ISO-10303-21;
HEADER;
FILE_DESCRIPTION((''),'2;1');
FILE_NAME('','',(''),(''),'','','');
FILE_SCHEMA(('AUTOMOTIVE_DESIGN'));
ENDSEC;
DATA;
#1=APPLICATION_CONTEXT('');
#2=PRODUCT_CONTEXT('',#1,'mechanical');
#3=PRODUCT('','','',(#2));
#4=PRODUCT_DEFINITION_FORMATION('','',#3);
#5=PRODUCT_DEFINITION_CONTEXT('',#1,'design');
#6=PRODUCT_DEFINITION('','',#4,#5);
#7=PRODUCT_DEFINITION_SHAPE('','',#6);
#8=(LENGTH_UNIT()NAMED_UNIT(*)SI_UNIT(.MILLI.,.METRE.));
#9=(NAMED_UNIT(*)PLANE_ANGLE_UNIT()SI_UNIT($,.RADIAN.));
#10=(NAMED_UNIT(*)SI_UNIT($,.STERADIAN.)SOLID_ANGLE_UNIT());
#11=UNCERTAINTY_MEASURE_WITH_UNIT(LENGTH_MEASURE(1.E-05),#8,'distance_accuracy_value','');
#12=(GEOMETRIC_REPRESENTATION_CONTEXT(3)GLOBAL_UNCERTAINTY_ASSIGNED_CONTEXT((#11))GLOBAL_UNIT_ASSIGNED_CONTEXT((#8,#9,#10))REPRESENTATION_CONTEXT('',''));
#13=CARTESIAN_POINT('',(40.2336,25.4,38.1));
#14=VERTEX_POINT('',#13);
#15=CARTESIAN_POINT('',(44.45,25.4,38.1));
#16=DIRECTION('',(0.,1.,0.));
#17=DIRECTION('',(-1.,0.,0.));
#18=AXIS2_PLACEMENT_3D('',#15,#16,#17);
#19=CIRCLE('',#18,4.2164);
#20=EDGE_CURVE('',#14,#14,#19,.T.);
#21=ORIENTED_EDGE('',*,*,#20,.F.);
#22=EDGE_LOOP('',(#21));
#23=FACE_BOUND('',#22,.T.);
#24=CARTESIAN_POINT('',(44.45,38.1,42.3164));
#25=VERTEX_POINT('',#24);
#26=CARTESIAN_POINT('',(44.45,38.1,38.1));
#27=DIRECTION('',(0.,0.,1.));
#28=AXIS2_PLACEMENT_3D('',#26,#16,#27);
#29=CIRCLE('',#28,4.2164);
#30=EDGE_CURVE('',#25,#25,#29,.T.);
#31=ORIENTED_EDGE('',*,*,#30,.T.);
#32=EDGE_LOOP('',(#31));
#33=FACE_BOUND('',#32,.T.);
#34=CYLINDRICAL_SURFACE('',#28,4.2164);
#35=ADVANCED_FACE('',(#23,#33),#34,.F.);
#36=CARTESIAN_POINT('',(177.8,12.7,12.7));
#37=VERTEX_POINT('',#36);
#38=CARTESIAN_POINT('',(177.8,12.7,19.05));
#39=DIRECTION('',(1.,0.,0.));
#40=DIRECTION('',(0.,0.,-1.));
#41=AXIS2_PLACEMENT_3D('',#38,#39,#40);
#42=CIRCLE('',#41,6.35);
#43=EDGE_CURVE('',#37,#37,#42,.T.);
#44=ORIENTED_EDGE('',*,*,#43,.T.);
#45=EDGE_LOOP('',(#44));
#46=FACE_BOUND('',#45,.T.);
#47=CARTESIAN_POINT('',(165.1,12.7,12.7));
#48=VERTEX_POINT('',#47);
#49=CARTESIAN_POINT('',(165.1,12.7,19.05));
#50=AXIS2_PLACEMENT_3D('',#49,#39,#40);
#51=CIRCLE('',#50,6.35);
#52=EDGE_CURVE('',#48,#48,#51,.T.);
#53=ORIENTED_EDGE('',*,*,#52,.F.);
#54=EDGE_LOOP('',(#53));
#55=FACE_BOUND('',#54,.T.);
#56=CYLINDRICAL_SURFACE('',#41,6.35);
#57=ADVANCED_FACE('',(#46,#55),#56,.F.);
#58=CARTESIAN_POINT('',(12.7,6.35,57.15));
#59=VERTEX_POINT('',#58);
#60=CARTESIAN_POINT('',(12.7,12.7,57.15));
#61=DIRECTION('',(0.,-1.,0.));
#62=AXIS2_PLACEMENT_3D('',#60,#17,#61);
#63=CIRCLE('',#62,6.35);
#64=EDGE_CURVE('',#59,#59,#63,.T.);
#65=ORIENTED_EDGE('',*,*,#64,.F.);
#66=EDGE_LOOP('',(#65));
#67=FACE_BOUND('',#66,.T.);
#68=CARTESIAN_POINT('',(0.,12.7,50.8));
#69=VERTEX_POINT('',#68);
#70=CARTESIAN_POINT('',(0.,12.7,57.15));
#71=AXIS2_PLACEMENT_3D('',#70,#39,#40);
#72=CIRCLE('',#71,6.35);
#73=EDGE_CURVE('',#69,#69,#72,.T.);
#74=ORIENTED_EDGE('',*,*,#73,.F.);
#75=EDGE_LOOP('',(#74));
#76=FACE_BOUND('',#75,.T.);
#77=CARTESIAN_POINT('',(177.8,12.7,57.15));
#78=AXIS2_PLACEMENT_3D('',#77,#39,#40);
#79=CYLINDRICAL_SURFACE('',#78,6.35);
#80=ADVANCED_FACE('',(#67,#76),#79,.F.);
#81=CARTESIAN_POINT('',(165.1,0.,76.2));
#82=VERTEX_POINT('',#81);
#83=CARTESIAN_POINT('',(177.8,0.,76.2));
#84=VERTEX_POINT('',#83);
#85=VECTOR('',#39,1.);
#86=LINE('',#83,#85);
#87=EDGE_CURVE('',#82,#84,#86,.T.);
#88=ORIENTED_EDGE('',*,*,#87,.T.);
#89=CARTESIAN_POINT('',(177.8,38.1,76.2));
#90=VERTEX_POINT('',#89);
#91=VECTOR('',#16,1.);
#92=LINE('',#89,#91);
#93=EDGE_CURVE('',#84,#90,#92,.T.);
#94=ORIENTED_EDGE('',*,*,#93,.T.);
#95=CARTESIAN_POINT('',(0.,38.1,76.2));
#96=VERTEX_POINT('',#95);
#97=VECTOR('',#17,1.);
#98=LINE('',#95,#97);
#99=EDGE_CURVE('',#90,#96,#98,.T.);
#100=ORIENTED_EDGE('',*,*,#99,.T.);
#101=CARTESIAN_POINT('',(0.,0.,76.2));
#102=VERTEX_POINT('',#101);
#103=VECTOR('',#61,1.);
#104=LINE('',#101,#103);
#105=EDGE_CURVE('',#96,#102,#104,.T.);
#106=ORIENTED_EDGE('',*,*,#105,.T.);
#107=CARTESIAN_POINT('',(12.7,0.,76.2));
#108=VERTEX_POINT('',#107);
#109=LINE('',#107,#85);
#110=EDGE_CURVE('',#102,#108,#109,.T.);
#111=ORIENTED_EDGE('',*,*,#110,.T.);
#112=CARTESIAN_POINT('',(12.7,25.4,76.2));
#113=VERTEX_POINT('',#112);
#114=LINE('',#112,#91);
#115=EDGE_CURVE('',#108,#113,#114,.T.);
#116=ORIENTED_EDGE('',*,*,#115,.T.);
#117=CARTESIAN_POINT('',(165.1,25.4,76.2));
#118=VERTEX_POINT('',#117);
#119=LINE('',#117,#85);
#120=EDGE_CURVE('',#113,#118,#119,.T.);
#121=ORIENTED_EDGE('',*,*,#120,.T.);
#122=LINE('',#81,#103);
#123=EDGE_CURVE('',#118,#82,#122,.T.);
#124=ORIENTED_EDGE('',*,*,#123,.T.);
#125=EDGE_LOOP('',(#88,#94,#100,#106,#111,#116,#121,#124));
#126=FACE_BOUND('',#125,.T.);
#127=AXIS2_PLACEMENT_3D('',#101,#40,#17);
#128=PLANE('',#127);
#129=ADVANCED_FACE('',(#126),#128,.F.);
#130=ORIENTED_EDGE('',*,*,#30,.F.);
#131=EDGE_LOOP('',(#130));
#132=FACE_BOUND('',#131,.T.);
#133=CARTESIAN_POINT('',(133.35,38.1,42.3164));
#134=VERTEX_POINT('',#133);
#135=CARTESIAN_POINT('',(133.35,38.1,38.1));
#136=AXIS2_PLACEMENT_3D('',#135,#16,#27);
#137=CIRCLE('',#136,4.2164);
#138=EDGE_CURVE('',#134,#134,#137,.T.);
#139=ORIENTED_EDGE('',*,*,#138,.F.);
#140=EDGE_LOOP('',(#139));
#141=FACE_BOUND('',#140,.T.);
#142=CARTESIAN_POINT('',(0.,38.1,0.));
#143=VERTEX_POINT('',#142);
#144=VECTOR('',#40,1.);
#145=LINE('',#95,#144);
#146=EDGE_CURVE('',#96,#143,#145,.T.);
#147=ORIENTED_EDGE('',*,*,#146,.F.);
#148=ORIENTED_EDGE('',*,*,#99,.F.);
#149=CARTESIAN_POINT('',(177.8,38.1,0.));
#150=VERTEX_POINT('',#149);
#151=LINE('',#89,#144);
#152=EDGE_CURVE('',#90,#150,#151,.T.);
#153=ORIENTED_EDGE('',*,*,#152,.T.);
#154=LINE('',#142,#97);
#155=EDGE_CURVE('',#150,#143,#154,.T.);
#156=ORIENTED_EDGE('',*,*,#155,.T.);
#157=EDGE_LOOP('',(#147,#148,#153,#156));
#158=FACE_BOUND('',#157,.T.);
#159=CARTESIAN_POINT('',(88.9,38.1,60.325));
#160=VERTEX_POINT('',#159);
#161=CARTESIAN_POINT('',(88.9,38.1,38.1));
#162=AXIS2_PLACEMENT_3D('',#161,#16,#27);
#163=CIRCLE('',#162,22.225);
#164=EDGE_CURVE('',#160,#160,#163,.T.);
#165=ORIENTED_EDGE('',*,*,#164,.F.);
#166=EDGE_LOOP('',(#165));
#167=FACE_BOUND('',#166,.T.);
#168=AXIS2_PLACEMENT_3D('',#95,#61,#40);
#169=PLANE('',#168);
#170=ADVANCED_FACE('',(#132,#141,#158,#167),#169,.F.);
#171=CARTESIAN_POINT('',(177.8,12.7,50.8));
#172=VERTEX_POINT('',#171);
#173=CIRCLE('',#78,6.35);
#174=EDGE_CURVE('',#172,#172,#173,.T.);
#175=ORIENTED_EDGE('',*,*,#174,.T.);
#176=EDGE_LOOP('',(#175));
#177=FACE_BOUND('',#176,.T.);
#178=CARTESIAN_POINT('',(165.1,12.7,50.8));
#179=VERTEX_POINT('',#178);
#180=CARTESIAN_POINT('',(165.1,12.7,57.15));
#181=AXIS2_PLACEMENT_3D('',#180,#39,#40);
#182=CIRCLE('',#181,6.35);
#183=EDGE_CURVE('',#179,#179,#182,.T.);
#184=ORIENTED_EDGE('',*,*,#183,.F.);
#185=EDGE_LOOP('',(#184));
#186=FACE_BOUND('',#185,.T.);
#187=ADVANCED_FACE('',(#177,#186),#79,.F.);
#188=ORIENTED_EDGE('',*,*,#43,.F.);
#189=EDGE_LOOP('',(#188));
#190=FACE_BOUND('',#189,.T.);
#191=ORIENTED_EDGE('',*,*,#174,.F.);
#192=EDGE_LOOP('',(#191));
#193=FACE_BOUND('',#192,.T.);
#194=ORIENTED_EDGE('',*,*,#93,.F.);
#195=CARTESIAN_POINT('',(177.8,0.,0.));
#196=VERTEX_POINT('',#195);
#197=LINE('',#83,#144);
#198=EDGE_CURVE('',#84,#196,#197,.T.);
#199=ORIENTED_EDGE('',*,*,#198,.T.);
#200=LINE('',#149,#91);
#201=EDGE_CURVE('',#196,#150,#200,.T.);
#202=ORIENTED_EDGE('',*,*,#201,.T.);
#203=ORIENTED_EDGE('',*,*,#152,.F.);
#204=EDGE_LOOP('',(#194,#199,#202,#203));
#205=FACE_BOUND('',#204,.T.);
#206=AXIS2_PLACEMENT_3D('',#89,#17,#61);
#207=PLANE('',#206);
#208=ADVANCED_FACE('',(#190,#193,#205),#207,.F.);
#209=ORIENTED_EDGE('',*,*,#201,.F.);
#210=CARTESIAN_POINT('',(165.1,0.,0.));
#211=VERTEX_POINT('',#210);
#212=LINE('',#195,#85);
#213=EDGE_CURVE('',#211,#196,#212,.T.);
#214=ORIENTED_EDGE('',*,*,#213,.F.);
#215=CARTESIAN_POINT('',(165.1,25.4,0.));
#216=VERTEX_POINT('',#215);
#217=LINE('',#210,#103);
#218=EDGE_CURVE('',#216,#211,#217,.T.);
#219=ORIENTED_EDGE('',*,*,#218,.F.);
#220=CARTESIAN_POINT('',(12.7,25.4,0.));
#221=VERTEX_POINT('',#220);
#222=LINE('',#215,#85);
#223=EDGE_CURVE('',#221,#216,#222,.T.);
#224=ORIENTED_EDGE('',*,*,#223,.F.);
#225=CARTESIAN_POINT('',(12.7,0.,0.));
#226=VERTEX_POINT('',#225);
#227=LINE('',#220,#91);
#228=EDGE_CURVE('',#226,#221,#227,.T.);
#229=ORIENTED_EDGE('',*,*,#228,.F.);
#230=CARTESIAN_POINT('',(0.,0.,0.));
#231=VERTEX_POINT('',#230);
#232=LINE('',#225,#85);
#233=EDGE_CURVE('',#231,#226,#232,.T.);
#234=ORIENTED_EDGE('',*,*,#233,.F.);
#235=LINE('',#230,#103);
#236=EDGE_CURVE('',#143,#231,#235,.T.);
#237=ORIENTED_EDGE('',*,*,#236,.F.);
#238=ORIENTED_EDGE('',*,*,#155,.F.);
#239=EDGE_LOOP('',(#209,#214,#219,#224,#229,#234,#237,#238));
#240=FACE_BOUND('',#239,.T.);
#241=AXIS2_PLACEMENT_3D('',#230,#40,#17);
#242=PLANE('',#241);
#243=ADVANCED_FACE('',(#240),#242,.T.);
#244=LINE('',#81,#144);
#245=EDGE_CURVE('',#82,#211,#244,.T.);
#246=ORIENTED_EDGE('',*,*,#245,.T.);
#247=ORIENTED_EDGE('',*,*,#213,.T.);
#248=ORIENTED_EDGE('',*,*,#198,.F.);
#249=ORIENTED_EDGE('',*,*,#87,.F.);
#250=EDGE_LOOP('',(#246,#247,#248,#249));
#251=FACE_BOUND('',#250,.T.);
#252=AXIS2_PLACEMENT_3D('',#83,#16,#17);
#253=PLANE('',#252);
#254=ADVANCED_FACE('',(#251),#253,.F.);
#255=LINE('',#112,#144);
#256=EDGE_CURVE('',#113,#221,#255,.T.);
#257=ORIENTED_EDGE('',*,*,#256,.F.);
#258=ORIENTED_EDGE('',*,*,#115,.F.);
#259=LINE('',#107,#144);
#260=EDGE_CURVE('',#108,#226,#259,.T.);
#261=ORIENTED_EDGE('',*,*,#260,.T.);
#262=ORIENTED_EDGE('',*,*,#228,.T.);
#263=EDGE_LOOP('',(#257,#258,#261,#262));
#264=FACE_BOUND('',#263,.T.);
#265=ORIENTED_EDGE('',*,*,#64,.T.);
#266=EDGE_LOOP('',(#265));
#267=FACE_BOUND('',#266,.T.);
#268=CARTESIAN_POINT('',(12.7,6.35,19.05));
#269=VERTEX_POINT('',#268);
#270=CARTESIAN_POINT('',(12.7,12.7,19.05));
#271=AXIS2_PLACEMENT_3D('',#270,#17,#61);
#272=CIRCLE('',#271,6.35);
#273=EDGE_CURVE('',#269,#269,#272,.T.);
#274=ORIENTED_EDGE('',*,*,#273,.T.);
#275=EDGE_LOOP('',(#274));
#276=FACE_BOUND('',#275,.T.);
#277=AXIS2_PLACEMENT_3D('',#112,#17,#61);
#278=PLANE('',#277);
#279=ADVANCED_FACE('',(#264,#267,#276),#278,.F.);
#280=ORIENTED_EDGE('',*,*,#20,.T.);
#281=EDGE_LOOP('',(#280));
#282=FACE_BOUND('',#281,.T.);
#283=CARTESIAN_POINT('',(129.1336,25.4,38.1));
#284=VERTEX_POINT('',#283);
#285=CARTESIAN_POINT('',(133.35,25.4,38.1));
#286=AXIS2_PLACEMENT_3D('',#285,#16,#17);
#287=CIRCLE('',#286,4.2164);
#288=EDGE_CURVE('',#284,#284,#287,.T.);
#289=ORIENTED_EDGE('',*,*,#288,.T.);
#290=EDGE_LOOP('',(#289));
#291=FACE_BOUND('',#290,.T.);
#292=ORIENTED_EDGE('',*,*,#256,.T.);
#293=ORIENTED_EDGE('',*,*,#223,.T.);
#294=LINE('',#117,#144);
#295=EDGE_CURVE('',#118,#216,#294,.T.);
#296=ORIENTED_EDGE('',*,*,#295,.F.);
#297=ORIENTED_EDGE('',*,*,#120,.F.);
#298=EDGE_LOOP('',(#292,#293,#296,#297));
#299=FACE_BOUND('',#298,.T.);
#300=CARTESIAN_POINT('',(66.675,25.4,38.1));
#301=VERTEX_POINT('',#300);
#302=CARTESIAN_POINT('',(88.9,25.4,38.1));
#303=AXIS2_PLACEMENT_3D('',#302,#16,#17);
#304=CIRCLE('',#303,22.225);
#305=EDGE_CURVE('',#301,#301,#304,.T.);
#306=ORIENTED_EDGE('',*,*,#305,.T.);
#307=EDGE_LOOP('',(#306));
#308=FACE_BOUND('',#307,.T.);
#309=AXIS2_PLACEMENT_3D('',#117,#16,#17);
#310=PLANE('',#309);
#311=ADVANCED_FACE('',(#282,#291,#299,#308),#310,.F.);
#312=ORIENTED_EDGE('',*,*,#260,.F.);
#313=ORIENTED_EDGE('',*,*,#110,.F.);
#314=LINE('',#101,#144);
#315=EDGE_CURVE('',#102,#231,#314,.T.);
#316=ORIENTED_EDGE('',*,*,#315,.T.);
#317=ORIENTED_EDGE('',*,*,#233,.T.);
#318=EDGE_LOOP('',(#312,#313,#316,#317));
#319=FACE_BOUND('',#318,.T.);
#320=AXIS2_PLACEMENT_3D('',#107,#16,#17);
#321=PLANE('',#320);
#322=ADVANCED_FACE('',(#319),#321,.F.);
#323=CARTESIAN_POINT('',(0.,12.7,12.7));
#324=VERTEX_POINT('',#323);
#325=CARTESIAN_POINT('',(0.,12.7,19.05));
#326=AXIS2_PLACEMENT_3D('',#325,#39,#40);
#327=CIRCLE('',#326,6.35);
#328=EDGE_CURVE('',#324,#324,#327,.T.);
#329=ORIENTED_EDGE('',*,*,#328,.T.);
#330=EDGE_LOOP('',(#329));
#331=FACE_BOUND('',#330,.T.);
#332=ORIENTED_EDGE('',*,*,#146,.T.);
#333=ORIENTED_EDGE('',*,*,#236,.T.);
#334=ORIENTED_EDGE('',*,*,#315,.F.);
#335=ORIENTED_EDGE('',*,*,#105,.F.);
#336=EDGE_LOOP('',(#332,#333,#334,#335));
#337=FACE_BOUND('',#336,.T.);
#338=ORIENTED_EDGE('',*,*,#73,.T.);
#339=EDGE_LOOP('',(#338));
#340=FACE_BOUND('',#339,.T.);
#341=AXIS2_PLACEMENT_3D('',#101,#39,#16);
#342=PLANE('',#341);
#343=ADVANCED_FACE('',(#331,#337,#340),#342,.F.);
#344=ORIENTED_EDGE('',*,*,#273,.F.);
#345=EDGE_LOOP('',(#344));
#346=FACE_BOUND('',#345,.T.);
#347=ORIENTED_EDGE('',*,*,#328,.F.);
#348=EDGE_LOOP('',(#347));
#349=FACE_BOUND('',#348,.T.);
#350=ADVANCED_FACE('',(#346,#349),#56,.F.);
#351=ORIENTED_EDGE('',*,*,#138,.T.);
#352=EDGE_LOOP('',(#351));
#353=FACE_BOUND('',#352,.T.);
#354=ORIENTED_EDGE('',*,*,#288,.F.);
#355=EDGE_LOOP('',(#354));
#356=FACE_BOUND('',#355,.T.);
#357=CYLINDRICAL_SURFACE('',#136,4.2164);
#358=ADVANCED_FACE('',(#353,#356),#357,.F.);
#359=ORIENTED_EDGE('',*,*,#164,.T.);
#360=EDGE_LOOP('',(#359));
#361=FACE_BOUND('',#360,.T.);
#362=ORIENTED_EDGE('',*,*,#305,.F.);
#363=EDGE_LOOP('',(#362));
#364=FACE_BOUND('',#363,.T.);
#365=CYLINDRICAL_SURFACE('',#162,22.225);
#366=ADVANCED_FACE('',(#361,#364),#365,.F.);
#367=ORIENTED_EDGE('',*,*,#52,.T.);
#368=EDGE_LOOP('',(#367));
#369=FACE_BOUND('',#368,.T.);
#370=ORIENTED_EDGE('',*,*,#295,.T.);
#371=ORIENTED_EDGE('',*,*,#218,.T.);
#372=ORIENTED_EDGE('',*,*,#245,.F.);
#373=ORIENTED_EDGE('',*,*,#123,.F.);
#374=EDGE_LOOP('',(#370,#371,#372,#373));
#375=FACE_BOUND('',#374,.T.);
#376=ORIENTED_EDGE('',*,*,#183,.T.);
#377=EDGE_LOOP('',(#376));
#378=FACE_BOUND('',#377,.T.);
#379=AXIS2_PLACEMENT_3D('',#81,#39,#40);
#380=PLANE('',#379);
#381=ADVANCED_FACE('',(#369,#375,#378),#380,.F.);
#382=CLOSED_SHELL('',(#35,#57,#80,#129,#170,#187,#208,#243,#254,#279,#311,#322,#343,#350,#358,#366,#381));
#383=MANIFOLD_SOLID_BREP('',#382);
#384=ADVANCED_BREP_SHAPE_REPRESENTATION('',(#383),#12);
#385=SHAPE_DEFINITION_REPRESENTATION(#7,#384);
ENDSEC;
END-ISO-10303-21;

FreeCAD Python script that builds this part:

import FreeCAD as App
import Part
import Sketcher

V = App.Vector
Q = App.Units.Quantity


def add_polygon(sketch, points):
    """Adds a closed chain of lines whose ends are joined by coincident constraints."""
    first, n = sketch.GeometryCount, len(points)
    for a, b in zip(points, points[1:] + points[:1]):
        sketch.addGeometry(Part.LineSegment(App.Vector(*a, 0), App.Vector(*b, 0)), False)
    for i in range(n):
        sketch.addConstraint(Sketcher.Constraint("Coincident", first + i, 2, first + (i + 1) % n, 1))

doc = App.newDocument("Part")
params = doc.addObject("Spreadsheet::Sheet", "Params")
for row, (alias, value) in enumerate([
    ("sketch1_width", "6 in"),
    ("sketch1_width2", "7 in"),
    ("sketch1_height", "1 in"),
    ("sketch1_height2", "1.5 in"),
    ("pad1_length", "3 in"),
    ("sketch2_diameter", "1.75 in"),
    ("hole_diameter", "1.75 in"),
    ("sketch3_diameter", "0.332 in"),
    ("hole2_diameter", "0.332 in"),
    ("sketch4_diameter", "0.5 in"),
    ("hole3_diameter", "0.5 in"),
], start=1):
    params.set(f"A{row}", alias)
    params.set(f"B{row}", "=" + value)
    params.setAlias(f"B{row}", alias)

body = doc.addObject("PartDesign::Body", "Body")

sketch1 = body.newObject("Sketcher::SketchObject", "Sketch")
sketch1.AttachmentSupport = (doc.getObject("XY_Plane"), [""])
sketch1.MapMode = "FlatFace"
add_polygon(sketch1, [(0, 38), (0, 0), (13, 0), (13, 25), (165, 25), (165, 0), (178, 0), (178, 38)])
sketch1.addConstraint([
    Sketcher.Constraint("Vertical", 0),
    Sketcher.Constraint("Horizontal", 1),
    Sketcher.Constraint("Vertical", 2),
    Sketcher.Constraint("Horizontal", 3),
    Sketcher.Constraint("Vertical", 4),
    Sketcher.Constraint("Horizontal", 5),
    Sketcher.Constraint("Vertical", 6),
    Sketcher.Constraint("Horizontal", 7),
    Sketcher.Constraint("Coincident", 0, 2, -1, 1),
    Sketcher.Constraint("PointOnObject", 4, 2, -1),
    Sketcher.Constraint("Equal", 1, 5),
    Sketcher.Constraint("DistanceX", 3, 1, 3, 2, Q("6 in")),
    Sketcher.Constraint("DistanceX", 7, 2, 7, 1, Q("7 in")),
    Sketcher.Constraint("DistanceY", 2, 1, 2, 2, Q("1 in")),
    Sketcher.Constraint("DistanceY", 0, 2, 0, 1, Q("1.5 in")),
])
sketch1.setExpression("Constraints[19]", "Params.sketch1_width")
sketch1.setExpression("Constraints[20]", "Params.sketch1_width2")
sketch1.setExpression("Constraints[21]", "Params.sketch1_height")
sketch1.setExpression("Constraints[22]", "Params.sketch1_height2")
pad1 = body.newObject("PartDesign::Pad", "Pad")
pad1.Profile = sketch1
pad1.setExpression("Length", "Params.pad1_length")

sketch2 = body.newObject("Sketcher::SketchObject", "Sketch001")
sketch2.AttachmentSupport = (doc.getObject("XZ_Plane"), [""])
sketch2.MapMode = "FlatFace"
sketch2.AttachmentOffset = App.Placement(V(0, 0, -1.5 * 25.4), App.Rotation())
sketch2.addGeometry(Part.Circle(V(89, 38, 0), V(0, 0, 1), 22), False)
sketch2.addConstraint([
    Sketcher.Constraint("Diameter", 0, Q("1.75 in")),
    Sketcher.Constraint("DistanceX", -1, 1, 0, 3, Q("3.5 in")),
    Sketcher.Constraint("DistanceY", -1, 1, 0, 3, Q("1.5 in")),
])
sketch2.setExpression("Constraints[0]", "Params.sketch2_diameter")
doc.recompute()
hole = body.newObject("PartDesign::Hole", "Hole")
hole.Profile = sketch2
hole.ThreadType = "None"
hole.setExpression("Diameter", "Params.hole_diameter")
hole.DepthType = "ThroughAll"
hole.Reversed = True

sketch3 = body.newObject("Sketcher::SketchObject", "Sketch002")
sketch3.AttachmentSupport = (doc.getObject("XZ_Plane"), [""])
sketch3.MapMode = "FlatFace"
sketch3.AttachmentOffset = App.Placement(V(0, 0, -1.5 * 25.4), App.Rotation())
sketch3.addGeometry([
    Part.Circle(V(44.5, 38.1, 0), V(0, 0, 1), 4.2),
    Part.Circle(V(133.3, 38.1, 0), V(0, 0, 1), 4.2),
], False)
sketch3.addConstraint([
    Sketcher.Constraint("Equal", 0, 1),
    Sketcher.Constraint("Horizontal", 0, 3, 1, 3),
    Sketcher.Constraint("Diameter", 0, Q("0.332 in")),
    Sketcher.Constraint("DistanceY", -1, 1, 0, 3, Q("1.5 in")),
    Sketcher.Constraint("DistanceX", 0, 3, 1, 3, Q("3.5 in")),
    Sketcher.Constraint("DistanceX", -1, 1, 0, 3, Q("1.75 in")),
])
sketch3.setExpression("Constraints[2]", "Params.sketch3_diameter")
doc.recompute()
hole2 = body.newObject("PartDesign::Hole", "Hole001")
hole2.Profile = sketch3
hole2.ThreadType = "None"
hole2.setExpression("Diameter", "Params.hole2_diameter")
hole2.DepthType = "ThroughAll"
hole2.Reversed = True

sketch4 = body.newObject("Sketcher::SketchObject", "Sketch003")
sketch4.AttachmentSupport = (doc.getObject("YZ_Plane"), [""])
sketch4.MapMode = "FlatFace"
sketch4.AttachmentOffset = App.Placement(V(0, 0, 7 * 25.4), App.Rotation())
sketch4.addGeometry([
    Part.Circle(V(13, 57, 0), V(0, 0, 1), 6),
    Part.Circle(V(13, 19, 0), V(0, 0, 1), 6),
], False)
sketch4.addConstraint([
    Sketcher.Constraint("Equal", 0, 1),
    Sketcher.Constraint("Vertical", 0, 3, 1, 3),
    Sketcher.Constraint("Diameter", 0, Q("0.5 in")),
    Sketcher.Constraint("DistanceX", -1, 1, 0, 3, Q("0.5 in")),
    Sketcher.Constraint("DistanceY", 1, 3, 0, 3, Q("1.5 in")),
    Sketcher.Constraint("DistanceY", -1, 1, 0, 3, Q("2.25 in")),
])
sketch4.setExpression("Constraints[2]", "Params.sketch4_diameter")
doc.recompute()
hole3 = body.newObject("PartDesign::Hole", "Hole002")
hole3.Profile = sketch4
hole3.ThreadType = "None"
hole3.setExpression("Diameter", "Params.hole3_diameter")
hole3.DepthType = "ThroughAll"

doc.recompute()
